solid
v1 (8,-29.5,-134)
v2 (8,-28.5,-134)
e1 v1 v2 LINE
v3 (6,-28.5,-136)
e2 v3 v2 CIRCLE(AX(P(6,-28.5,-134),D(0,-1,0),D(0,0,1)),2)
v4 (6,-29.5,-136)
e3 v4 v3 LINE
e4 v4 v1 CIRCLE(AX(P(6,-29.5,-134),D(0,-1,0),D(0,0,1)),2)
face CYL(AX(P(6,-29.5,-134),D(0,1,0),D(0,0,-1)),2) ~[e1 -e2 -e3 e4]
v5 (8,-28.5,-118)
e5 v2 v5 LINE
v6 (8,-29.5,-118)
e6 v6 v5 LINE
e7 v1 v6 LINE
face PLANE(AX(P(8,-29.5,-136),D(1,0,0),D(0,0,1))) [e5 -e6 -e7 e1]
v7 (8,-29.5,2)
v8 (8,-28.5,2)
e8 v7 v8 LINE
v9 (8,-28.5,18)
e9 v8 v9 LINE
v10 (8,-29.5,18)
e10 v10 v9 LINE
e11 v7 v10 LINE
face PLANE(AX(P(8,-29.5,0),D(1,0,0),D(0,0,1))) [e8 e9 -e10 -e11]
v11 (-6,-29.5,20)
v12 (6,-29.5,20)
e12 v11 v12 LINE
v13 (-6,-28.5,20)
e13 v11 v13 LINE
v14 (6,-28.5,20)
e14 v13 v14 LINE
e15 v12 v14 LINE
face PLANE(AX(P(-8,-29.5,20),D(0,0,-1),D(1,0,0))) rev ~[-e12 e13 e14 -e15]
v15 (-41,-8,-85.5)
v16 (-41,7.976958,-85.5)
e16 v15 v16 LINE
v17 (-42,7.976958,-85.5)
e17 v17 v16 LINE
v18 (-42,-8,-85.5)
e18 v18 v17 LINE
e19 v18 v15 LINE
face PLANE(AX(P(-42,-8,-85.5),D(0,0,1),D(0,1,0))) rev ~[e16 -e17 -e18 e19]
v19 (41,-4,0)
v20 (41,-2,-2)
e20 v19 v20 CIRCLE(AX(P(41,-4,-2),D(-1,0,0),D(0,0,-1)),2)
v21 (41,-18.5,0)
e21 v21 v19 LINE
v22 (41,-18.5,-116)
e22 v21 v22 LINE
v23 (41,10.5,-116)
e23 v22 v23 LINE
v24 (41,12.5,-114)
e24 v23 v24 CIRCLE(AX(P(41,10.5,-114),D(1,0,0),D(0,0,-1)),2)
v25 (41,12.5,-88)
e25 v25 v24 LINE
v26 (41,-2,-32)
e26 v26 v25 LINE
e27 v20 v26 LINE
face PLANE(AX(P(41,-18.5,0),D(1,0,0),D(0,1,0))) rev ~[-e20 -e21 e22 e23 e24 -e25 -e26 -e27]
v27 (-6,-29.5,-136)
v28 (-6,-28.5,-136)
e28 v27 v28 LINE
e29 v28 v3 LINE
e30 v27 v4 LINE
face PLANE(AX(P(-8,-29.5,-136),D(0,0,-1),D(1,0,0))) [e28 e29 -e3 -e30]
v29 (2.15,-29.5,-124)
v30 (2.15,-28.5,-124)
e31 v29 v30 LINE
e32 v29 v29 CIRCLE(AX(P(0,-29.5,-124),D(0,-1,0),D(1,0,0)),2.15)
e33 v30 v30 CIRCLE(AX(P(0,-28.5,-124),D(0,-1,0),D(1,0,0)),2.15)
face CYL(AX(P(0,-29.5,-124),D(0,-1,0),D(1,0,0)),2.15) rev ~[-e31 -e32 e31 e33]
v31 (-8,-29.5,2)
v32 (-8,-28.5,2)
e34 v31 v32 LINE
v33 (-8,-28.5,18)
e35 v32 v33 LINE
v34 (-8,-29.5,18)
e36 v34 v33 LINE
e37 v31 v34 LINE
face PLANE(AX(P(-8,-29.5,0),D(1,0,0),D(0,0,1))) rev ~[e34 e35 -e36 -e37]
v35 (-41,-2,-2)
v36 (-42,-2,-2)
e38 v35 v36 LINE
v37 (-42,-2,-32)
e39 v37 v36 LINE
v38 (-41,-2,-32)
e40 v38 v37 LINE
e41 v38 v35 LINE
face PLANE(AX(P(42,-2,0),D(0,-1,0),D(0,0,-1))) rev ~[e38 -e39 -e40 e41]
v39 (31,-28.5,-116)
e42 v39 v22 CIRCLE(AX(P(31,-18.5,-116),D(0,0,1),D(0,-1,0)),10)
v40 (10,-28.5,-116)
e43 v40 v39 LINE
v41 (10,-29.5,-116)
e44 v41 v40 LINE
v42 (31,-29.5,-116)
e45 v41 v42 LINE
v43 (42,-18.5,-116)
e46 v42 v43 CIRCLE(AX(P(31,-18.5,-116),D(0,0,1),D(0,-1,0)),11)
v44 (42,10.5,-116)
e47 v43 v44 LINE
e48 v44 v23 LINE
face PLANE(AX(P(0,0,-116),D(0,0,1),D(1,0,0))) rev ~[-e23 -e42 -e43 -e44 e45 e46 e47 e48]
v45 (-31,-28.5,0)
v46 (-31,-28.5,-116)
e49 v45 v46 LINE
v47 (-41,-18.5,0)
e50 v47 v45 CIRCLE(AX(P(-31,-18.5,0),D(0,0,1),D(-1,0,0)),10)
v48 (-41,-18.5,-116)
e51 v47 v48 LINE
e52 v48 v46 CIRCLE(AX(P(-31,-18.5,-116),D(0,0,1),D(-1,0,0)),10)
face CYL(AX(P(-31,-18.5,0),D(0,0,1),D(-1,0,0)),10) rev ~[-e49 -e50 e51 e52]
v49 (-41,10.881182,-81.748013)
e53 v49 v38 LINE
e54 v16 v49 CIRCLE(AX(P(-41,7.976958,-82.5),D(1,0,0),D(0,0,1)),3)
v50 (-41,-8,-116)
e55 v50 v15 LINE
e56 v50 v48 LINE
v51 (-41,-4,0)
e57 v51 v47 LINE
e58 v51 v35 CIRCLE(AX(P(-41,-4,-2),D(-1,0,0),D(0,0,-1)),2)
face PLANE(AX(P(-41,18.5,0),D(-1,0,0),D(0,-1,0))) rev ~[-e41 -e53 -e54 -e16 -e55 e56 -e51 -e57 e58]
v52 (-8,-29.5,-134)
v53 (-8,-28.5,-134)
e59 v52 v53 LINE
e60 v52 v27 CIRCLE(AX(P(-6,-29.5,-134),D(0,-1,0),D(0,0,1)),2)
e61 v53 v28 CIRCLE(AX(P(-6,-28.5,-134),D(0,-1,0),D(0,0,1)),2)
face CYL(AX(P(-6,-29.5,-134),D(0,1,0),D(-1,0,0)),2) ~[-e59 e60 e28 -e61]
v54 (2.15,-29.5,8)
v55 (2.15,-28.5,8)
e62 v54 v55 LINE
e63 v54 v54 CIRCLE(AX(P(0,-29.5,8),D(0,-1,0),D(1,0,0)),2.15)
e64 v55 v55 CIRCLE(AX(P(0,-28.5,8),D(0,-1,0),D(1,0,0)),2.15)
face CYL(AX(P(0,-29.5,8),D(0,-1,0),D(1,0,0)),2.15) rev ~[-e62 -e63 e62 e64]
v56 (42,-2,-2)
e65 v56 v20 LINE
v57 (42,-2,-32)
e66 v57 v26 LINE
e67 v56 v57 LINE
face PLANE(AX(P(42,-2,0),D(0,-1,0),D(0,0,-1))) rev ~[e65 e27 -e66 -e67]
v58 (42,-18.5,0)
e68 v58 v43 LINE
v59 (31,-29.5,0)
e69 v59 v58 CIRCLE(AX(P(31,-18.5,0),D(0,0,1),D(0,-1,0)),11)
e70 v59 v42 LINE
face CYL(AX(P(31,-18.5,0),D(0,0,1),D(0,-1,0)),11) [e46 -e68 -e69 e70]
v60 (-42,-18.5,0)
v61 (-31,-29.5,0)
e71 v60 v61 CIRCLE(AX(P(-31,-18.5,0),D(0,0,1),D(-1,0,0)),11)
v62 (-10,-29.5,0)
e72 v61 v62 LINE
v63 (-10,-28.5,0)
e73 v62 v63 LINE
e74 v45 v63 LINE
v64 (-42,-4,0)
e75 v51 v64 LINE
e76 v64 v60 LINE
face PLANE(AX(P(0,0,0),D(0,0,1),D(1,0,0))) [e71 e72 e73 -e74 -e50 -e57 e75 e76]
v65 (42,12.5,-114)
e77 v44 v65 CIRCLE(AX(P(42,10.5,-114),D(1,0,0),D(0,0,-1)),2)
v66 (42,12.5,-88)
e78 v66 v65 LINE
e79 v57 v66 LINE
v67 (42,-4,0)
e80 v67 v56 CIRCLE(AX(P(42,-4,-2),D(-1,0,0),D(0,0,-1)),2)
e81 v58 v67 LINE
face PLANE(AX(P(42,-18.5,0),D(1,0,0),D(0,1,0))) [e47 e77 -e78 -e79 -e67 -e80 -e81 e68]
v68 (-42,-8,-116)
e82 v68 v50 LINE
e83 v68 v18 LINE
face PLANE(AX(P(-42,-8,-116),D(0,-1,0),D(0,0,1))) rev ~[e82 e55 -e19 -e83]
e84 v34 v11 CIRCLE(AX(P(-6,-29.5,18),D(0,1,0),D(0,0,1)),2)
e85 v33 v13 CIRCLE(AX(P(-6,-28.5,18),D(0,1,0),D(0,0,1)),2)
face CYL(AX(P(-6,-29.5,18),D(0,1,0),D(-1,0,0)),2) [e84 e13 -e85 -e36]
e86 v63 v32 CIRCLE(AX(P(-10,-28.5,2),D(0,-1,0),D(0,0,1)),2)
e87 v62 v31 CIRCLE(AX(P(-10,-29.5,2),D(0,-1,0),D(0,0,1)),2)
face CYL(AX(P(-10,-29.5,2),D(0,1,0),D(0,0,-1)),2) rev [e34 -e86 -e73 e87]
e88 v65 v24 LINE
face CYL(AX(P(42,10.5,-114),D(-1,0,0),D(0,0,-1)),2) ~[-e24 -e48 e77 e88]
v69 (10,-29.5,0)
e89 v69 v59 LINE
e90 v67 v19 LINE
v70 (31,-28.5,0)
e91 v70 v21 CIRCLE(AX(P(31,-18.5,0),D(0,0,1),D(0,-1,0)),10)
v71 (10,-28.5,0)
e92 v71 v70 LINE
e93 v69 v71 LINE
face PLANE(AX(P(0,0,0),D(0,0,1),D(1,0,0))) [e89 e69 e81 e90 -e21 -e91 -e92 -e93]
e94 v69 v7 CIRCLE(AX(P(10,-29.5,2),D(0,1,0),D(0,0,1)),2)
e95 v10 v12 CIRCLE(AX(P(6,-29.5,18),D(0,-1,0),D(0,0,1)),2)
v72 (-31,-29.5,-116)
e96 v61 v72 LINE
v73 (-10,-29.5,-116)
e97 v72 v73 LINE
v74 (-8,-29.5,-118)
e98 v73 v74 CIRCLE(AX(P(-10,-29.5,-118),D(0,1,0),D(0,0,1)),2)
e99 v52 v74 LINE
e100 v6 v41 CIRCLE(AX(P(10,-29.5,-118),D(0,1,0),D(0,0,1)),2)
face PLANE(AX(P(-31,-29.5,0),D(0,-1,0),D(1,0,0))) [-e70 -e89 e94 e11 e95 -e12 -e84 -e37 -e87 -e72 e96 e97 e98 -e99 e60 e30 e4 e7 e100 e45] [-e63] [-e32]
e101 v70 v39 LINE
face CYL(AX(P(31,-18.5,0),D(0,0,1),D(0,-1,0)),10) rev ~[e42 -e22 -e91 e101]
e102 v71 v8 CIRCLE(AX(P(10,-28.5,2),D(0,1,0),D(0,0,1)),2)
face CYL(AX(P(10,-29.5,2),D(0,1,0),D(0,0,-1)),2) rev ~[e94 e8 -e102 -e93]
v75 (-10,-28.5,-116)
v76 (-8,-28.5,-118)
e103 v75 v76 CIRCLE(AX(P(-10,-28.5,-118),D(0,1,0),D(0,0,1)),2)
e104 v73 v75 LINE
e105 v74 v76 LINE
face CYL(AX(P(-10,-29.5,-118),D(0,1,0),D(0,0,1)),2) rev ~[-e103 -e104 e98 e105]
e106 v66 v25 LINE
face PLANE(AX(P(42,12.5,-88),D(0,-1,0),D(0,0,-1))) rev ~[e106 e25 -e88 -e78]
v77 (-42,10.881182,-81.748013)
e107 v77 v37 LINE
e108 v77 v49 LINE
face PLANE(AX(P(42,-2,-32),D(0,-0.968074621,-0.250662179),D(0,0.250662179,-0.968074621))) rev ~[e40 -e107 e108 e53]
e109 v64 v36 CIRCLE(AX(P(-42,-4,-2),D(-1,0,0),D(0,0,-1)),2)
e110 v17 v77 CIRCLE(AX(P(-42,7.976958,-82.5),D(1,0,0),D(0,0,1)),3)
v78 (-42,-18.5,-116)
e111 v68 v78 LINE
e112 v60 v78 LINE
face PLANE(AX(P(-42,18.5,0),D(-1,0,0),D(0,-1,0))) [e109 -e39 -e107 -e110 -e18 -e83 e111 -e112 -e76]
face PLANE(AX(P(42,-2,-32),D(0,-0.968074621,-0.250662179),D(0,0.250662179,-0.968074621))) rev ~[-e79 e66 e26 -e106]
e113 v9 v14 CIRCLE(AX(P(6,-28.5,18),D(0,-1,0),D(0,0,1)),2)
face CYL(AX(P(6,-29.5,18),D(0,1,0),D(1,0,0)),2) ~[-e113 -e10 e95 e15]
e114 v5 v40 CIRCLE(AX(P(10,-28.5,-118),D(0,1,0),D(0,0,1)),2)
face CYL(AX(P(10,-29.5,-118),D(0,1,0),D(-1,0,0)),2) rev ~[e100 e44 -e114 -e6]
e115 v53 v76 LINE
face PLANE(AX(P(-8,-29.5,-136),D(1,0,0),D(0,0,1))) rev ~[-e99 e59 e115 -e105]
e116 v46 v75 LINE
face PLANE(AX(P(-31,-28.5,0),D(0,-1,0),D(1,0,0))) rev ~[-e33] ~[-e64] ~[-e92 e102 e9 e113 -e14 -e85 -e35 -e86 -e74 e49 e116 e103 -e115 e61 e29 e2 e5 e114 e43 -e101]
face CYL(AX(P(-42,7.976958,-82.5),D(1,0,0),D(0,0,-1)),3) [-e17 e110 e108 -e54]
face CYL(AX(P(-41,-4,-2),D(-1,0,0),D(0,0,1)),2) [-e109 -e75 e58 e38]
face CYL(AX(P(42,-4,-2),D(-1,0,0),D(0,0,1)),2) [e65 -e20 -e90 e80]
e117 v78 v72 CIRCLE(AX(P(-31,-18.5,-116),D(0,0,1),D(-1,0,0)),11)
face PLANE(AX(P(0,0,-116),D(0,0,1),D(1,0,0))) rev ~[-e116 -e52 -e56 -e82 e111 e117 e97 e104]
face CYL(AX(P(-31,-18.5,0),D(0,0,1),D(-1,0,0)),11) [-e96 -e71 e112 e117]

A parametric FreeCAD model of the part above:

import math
import FreeCAD as App
import Part
import Sketcher


def edges_at(feature, points):
    """Names of the edges that pass closest to the given points."""
    edges = feature.Shape.Edges
    near = lambda p: min(range(len(edges)), key=lambda i: edges[i].distToShape(Part.Vertex(*p))[0])
    return sorted({f"Edge{near(p) + 1}" for p in points})

doc = App.newDocument("Part")
body = doc.addObject("PartDesign::Body", "Body")

# Sketch on XY plane
sketch1 = body.newObject("Sketcher::SketchObject", "Sketch")
sketch1.AttachmentSupport = (doc.getObject("XY_Plane"), [""])
sketch1.MapMode = "FlatFace"
sketch1.addGeometry([
    Part.LineSegment(App.Vector(-42, 18, 0), App.Vector(-42, -18, 0)),  # 0
    Part.ArcOfCircle(Part.Circle(App.Vector(-31, -18, 0), App.Vector(0, 0, 1), 11), math.radians(180), math.radians(270)),  # 1
    Part.LineSegment(App.Vector(-31, -30, 0), App.Vector(31, -30, 0)),  # 2
    Part.ArcOfCircle(Part.Circle(App.Vector(31, -18, 0), App.Vector(0, 0, 1), 11), math.radians(-90), math.radians(0)),  # 3
    Part.LineSegment(App.Vector(42, -18, 0), App.Vector(42, 18, 0)),  # 4
    Part.ArcOfCircle(Part.Circle(App.Vector(31, 18, 0), App.Vector(0, 0, 1), 11), math.radians(0), math.radians(90)),  # 5
    Part.LineSegment(App.Vector(31, 30, 0), App.Vector(-31, 30, 0)),  # 6
    Part.ArcOfCircle(Part.Circle(App.Vector(-31, 18, 0), App.Vector(0, 0, 1), 11), math.radians(90), math.radians(180)),  # 7
    Part.ArcOfCircle(Part.Circle(App.Vector(-31, 18, 0), App.Vector(0, 0, 1), 10), math.radians(90), math.radians(180)),  # 8
    Part.LineSegment(App.Vector(-31, 28, 0), App.Vector(31, 28, 0)),  # 9
    Part.ArcOfCircle(Part.Circle(App.Vector(31, 18, 0), App.Vector(0, 0, 1), 10), math.radians(0), math.radians(90)),  # 10
    Part.LineSegment(App.Vector(41, 18, 0), App.Vector(41, -18, 0)),  # 11
    Part.ArcOfCircle(Part.Circle(App.Vector(31, -18, 0), App.Vector(0, 0, 1), 10), math.radians(-90), math.radians(0)),  # 12
    Part.LineSegment(App.Vector(31, -28, 0), App.Vector(-31, -28, 0)),  # 13
    Part.ArcOfCircle(Part.Circle(App.Vector(-31, -18, 0), App.Vector(0, 0, 1), 10), math.radians(180), math.radians(270)),  # 14
    Part.LineSegment(App.Vector(-41, -18, 0), App.Vector(-41, 18, 0)),  # 15
], False)
sketch1.addConstraint([
    Sketcher.Constraint("Tangent", 0, 2, 1, 1),
    Sketcher.Constraint("Tangent", 1, 2, 2, 1),
    Sketcher.Constraint("Tangent", 2, 2, 3, 1),
    Sketcher.Constraint("Tangent", 3, 2, 4, 1),
    Sketcher.Constraint("Tangent", 4, 2, 5, 1),
    Sketcher.Constraint("Tangent", 5, 2, 6, 1),
    Sketcher.Constraint("Tangent", 6, 2, 7, 1),
    Sketcher.Constraint("Tangent", 7, 2, 0, 1),
    Sketcher.Constraint("Tangent", 8, 1, 9, 1),
    Sketcher.Constraint("Tangent", 9, 2, 10, 2),
    Sketcher.Constraint("Tangent", 10, 1, 11, 1),
    Sketcher.Constraint("Tangent", 11, 2, 12, 2),
    Sketcher.Constraint("Tangent", 12, 1, 13, 1),
    Sketcher.Constraint("Tangent", 13, 2, 14, 2),
    Sketcher.Constraint("Tangent", 14, 1, 15, 1),
    Sketcher.Constraint("Tangent", 15, 2, 8, 2),
    Sketcher.Constraint("Vertical", 0),
    Sketcher.Constraint("Horizontal", 2),
    Sketcher.Constraint("Vertical", 4),
    Sketcher.Constraint("Horizontal", 6),
    Sketcher.Constraint("Horizontal", 9),
    Sketcher.Constraint("Vertical", 11),
    Sketcher.Constraint("Horizontal", 13),
    Sketcher.Constraint("Vertical", 15),
    Sketcher.Constraint("Coincident", 8, 3, 7, 3),
    Sketcher.Constraint("Coincident", 10, 3, 5, 3),
    Sketcher.Constraint("Coincident", 12, 3, 3, 3),
    Sketcher.Constraint("Equal", 1, 3),
    Sketcher.Constraint("Equal", 3, 5),
    Sketcher.Constraint("Equal", 5, 7),
    Sketcher.Constraint("Equal", 12, 14),
    Sketcher.Constraint("Symmetric", 1, 3, 5, 3, -1, 1),
    Sketcher.Constraint("Radius", 1, 11.0),
    Sketcher.Constraint("Radius", 8, 10.0),
    Sketcher.Constraint("DistanceX", 2, 1, 2, 2, 62.0),
    Sketcher.Constraint("DistanceY", 0, 2, 0, 1, 37.0),
])
pad1 = body.newObject("PartDesign::Pad", "Pad")
pad1.Profile = sketch1
pad1.Length = 116
pad1.Reversed = True

# Sketch on XZ plane
sketch2 = body.newObject("Sketcher::SketchObject", "Sketch001")
sketch2.AttachmentSupport = (doc.getObject("XZ_Plane"), [""])
sketch2.MapMode = "FlatFace"
sketch2.AttachmentOffset = App.Placement(App.Vector(0, 0, 29.5), App.Rotation())
sketch2.addGeometry([
    Part.LineSegment(App.Vector(-8, 20, 0), App.Vector(-8, 0, 0)),  # 0
    Part.LineSegment(App.Vector(-8, 0, 0), App.Vector(8, 0, 0)),  # 1
    Part.LineSegment(App.Vector(8, 0, 0), App.Vector(8, 20, 0)),  # 2
    Part.LineSegment(App.Vector(8, 20, 0), App.Vector(-8, 20, 0)),  # 3
    Part.LineSegment(App.Vector(-8, -116, 0), App.Vector(-8, -136, 0)),  # 4
    Part.LineSegment(App.Vector(-8, -136, 0), App.Vector(8, -136, 0)),  # 5
    Part.LineSegment(App.Vector(8, -136, 0), App.Vector(8, -116, 0)),  # 6
    Part.LineSegment(App.Vector(8, -116, 0), App.Vector(-8, -116, 0)),  # 7
], False)
sketch2.addConstraint([
    Sketcher.Constraint("Coincident", 0, 2, 1, 1),
    Sketcher.Constraint("Coincident", 1, 2, 2, 1),
    Sketcher.Constraint("Coincident", 2, 2, 3, 1),
    Sketcher.Constraint("Coincident", 3, 2, 0, 1),
    Sketcher.Constraint("Coincident", 4, 2, 5, 1),
    Sketcher.Constraint("Coincident", 5, 2, 6, 1),
    Sketcher.Constraint("Coincident", 6, 2, 7, 1),
    Sketcher.Constraint("Coincident", 7, 2, 4, 1),
    Sketcher.Constraint("Vertical", 0),
    Sketcher.Constraint("Horizontal", 1),
    Sketcher.Constraint("Vertical", 2),
    Sketcher.Constraint("Horizontal", 3),
    Sketcher.Constraint("Vertical", 4),
    Sketcher.Constraint("Horizontal", 5),
    Sketcher.Constraint("Vertical", 6),
    Sketcher.Constraint("Horizontal", 7),
    Sketcher.Constraint("Symmetric", 0, 2, 1, 2, -1, 1),
    Sketcher.Constraint("Vertical", 3, 2, 4, 2),
    Sketcher.Constraint("Vertical", 2, 2, 5, 2),
    Sketcher.Constraint("Equal", 2, 4),
    Sketcher.Constraint("DistanceX", 1, 1, 1, 2, 16.0),
    Sketcher.Constraint("DistanceY", 0, 2, 0, 1, 20.0),
    Sketcher.Constraint("DistanceY", 4, 2, -1, 1, 136.0),
])
pad2 = body.newObject("PartDesign::Pad", "Pad001")
pad2.Profile = sketch2
pad2.Length = 1
pad2.Reversed = True

# Sketch on YZ plane
sketch3 = body.newObject("Sketcher::SketchObject", "Sketch002")
sketch3.AttachmentSupport = (doc.getObject("YZ_Plane"), [""])
sketch3.MapMode = "FlatFace"
sketch3.AttachmentOffset = App.Placement(App.Vector(0, 0, 42), App.Rotation())
sketch3.addGeometry([
    Part.LineSegment(App.Vector(-2, 0, 0), App.Vector(-2, -32, 0)),  # 0
    Part.LineSegment(App.Vector(-2, -32, 0), App.Vector(12, -88, 0)),  # 1
    Part.LineSegment(App.Vector(12, -88, 0), App.Vector(12, -116, 0)),  # 2
    Part.LineSegment(App.Vector(12, -116, 0), App.Vector(30, -116, 0)),  # 3
    Part.LineSegment(App.Vector(30, -116, 0), App.Vector(30, 0, 0)),  # 4
    Part.LineSegment(App.Vector(30, 0, 0), App.Vector(-2, 0, 0)),  # 5
], False)
sketch3.addConstraint([
    Sketcher.Constraint("Coincident", 0, 2, 1, 1),
    Sketcher.Constraint("Coincident", 1, 2, 2, 1),
    Sketcher.Constraint("Coincident", 2, 2, 3, 1),
    Sketcher.Constraint("Coincident", 3, 2, 4, 1),
    Sketcher.Constraint("Coincident", 4, 2, 5, 1),
    Sketcher.Constraint("Coincident", 5, 2, 0, 1),
    Sketcher.Constraint("Vertical", 0),
    Sketcher.Constraint("Vertical", 2),
    Sketcher.Constraint("Horizontal", 3),
    Sketcher.Constraint("Vertical", 4),
    Sketcher.Constraint("Horizontal", 5),
    Sketcher.Constraint("PointOnObject", 4, 2, -1),
    Sketcher.Constraint("DistanceX", 3, 1, 3, 2, 17.0),
    Sketcher.Constraint("DistanceY", 0, 2, 0, 1, 32.0),
    Sketcher.Constraint("DistanceY", 2, 2, 2, 1, 28.0),
    Sketcher.Constraint("DistanceY", 4, 1, 4, 2, 116.0),
    Sketcher.Constraint("DistanceX", 5, 2, 5, 1, 31.5),
    Sketcher.Constraint("DistanceX", 0, 2, -1, 1, 2.0),
])
pocket1 = body.newObject("PartDesign::Pocket", "Pocket")
pocket1.Profile = sketch3
pocket1.Type = "ThroughAll"
doc.recompute()

fillet = body.newObject("PartDesign::Fillet", "Fillet")
fillet.Base = (pocket1, edges_at(pocket1, [
    (8, -29, 20),
    (8, -29, 0),
    (-8, -29, 0),
    (-8, -29, 20),
    (-8, -29, -136),
    (-8, -29, -116),
    (8, -29, -116),
    (8, -29, -136),
    (41.5, -2, 0),
    (-41.5, 12.5, -116),
    (41.5, 12.5, -116),
    (-41.5, -2, 0),
]))
fillet.Radius = 2

# Sketch on YZ plane
sketch4 = body.newObject("Sketcher::SketchObject", "Sketch003")
sketch4.AttachmentSupport = (doc.getObject("YZ_Plane"), [""])
sketch4.MapMode = "FlatFace"
sketch4.AttachmentOffset = App.Placement(App.Vector(0, 0, -42), App.Rotation())
sketch4.addGeometry([
    Part.ArcOfCircle(Part.Circle(App.Vector(10.5, -114, 0), App.Vector(0, 0, 1), 2), math.radians(-90), math.radians(0)),  # 0
    Part.LineSegment(App.Vector(10.5, -116, 0), App.Vector(-8, -116, 0)),  # 1
    Part.LineSegment(App.Vector(-8, -116, 0), App.Vector(-8, -85.5, 0)),  # 2
    Part.LineSegment(App.Vector(-8, -85.5, 0), App.Vector(11.9, -85.5, 0)),  # 3
    Part.LineSegment(App.Vector(11.9, -85.5, 0), App.Vector(12.5, -88, 0)),  # 4
    Part.LineSegment(App.Vector(12.5, -88, 0), App.Vector(12.5, -114, 0)),  # 5
], False)
sketch4.addConstraint([
    Sketcher.Constraint("Tangent", 0, 1, 1, 1),
    Sketcher.Constraint("Coincident", 1, 2, 2, 1),
    Sketcher.Constraint("Coincident", 2, 2, 3, 1),
    Sketcher.Constraint("Coincident", 3, 2, 4, 1),
    Sketcher.Constraint("Coincident", 4, 2, 5, 1),
    Sketcher.Constraint("Tangent", 5, 2, 0, 2),
    Sketcher.Constraint("Horizontal", 1),
    Sketcher.Constraint("Vertical", 2),
    Sketcher.Constraint("Horizontal", 3),
    Sketcher.Constraint("Vertical", 5),
    Sketcher.Constraint("Radius", 0, 2.0),
    Sketcher.Constraint("DistanceY", 5, 2, 5, 1, 26.0),
    Sketcher.Constraint("DistanceX", 1, 2, 1, 1, 18.5),
    Sketcher.Constraint("DistanceY", 2, 1, 2, 2, 30.5),
    Sketcher.Constraint("DistanceY", 0, 3, -1, 1, 114.0),
    Sketcher.Constraint("DistanceX", 1, 2, -1, 1, 8.0),
    Sketcher.Constraint("DistanceX", 3, 1, 3, 2, 19.852679),
])
pocket2 = body.newObject("PartDesign::Pocket", "Pocket001")
pocket2.Profile = sketch4
pocket2.Length = 1
pocket2.Reversed = True
doc.recompute()

fillet2 = body.newObject("PartDesign::Fillet", "Fillet001")
fillet2.Base = (pocket2, edges_at(pocket2, [(-41.5, 11.853, -85.5)]))
fillet2.Radius = 3

# Sketch on XZ plane
sketch5 = body.newObject("Sketcher::SketchObject", "Sketch004")
sketch5.AttachmentSupport = (doc.getObject("XZ_Plane"), [""])
sketch5.MapMode = "FlatFace"
sketch5.AttachmentOffset = App.Placement(App.Vector(0, 0, 29.5), App.Rotation())
sketch5.addGeometry([
    Part.Circle(App.Vector(0, -124, 0), App.Vector(0, 0, 1), 2.1),
    Part.Circle(App.Vector(0, 8, 0), App.Vector(0, 0, 1), 2.1),
], False)
sketch5.addConstraint([
    Sketcher.Constraint("Equal", 0, 1),
    Sketcher.Constraint("PointOnObject", 0, 3, -2),
    Sketcher.Constraint("PointOnObject", 1, 3, -2),
    Sketcher.Constraint("Diameter", 0, 4.3),
    Sketcher.Constraint("DistanceY", 0, 3, -1, 1, 124.0),
    Sketcher.Constraint("DistanceY", -1, 1, 1, 3, 8.0),
])
pocket3 = body.newObject("PartDesign::Pocket", "Pocket002")
pocket3.Profile = sketch5
pocket3.Length = 1

doc.recompute()
